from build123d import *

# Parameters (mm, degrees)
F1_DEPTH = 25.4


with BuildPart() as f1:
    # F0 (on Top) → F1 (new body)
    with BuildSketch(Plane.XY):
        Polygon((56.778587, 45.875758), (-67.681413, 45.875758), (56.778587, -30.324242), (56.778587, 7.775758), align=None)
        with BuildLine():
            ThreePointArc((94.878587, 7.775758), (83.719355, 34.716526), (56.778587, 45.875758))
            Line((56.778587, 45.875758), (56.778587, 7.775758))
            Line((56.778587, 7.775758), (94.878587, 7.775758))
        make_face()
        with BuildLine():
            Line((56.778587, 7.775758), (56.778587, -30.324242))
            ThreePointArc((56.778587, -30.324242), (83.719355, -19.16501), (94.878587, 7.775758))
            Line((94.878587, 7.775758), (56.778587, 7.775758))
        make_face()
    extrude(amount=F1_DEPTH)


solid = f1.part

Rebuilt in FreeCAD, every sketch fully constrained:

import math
import FreeCAD as App
import Part
import Sketcher
from FreeCAD import Vector
Q = App.Units.Quantity

doc = App.newDocument("Part")
body = doc.addObject("PartDesign::Body", "Body")

# Sketch on XY plane
sketch1 = doc.addObject("Sketcher::SketchObject", "Sketch")
body.addObject(sketch1)
sketch1.AttachmentSupport = (doc.XY_Plane, [""])
sketch1.MapMode = "FlatFace"
sketch1.addGeometry([
    Part.LineSegment(Vector(57, 46, 0), Vector(-68, 46, 0)),
    Part.LineSegment(Vector(-68, 46, 0), Vector(57, -30, 0)),
    Part.ArcOfCircle(Part.Circle(Vector(57, 8, 0), Vector(0, 0, 1), 38), math.radians(-90), math.radians(0)),
    Part.ArcOfCircle(Part.Circle(Vector(57, 8, 0), Vector(0, 0, 1), 38), math.radians(0), math.radians(90)),
], False)
sketch1.addConstraint([
    Sketcher.Constraint("Coincident", 0, 2, 1, 1),
    Sketcher.Constraint("Coincident", 1, 2, 2, 1),
    Sketcher.Constraint("Tangent", 2, 2, 3, 1),
    Sketcher.Constraint("Tangent", 3, 2, 0, 1),
    Sketcher.Constraint("Horizontal", 0),
    Sketcher.Constraint("Equal", 2, 3),
    Sketcher.Constraint("Horizontal", 3, 3, 2, 2),
    Sketcher.Constraint("Vertical", 3, 3, 1, 2),
    Sketcher.Constraint("Radius", 2, Q("1.5 in")),
    Sketcher.Constraint("DistanceX", 0, 2, 0, 1, Q("4.9 in")),
    Sketcher.Constraint("DistanceY", -1, 1, 2, 3, Q("7.775759 mm")),
    Sketcher.Constraint("DistanceX", -1, 1, 2, 3, Q("56.778586 mm")),
])
pad1 = doc.addObject("PartDesign::Pad", "Pad")
body.addObject(pad1)
pad1.Profile = sketch1
pad1.Length = Q("1 in")

doc.recompute()
